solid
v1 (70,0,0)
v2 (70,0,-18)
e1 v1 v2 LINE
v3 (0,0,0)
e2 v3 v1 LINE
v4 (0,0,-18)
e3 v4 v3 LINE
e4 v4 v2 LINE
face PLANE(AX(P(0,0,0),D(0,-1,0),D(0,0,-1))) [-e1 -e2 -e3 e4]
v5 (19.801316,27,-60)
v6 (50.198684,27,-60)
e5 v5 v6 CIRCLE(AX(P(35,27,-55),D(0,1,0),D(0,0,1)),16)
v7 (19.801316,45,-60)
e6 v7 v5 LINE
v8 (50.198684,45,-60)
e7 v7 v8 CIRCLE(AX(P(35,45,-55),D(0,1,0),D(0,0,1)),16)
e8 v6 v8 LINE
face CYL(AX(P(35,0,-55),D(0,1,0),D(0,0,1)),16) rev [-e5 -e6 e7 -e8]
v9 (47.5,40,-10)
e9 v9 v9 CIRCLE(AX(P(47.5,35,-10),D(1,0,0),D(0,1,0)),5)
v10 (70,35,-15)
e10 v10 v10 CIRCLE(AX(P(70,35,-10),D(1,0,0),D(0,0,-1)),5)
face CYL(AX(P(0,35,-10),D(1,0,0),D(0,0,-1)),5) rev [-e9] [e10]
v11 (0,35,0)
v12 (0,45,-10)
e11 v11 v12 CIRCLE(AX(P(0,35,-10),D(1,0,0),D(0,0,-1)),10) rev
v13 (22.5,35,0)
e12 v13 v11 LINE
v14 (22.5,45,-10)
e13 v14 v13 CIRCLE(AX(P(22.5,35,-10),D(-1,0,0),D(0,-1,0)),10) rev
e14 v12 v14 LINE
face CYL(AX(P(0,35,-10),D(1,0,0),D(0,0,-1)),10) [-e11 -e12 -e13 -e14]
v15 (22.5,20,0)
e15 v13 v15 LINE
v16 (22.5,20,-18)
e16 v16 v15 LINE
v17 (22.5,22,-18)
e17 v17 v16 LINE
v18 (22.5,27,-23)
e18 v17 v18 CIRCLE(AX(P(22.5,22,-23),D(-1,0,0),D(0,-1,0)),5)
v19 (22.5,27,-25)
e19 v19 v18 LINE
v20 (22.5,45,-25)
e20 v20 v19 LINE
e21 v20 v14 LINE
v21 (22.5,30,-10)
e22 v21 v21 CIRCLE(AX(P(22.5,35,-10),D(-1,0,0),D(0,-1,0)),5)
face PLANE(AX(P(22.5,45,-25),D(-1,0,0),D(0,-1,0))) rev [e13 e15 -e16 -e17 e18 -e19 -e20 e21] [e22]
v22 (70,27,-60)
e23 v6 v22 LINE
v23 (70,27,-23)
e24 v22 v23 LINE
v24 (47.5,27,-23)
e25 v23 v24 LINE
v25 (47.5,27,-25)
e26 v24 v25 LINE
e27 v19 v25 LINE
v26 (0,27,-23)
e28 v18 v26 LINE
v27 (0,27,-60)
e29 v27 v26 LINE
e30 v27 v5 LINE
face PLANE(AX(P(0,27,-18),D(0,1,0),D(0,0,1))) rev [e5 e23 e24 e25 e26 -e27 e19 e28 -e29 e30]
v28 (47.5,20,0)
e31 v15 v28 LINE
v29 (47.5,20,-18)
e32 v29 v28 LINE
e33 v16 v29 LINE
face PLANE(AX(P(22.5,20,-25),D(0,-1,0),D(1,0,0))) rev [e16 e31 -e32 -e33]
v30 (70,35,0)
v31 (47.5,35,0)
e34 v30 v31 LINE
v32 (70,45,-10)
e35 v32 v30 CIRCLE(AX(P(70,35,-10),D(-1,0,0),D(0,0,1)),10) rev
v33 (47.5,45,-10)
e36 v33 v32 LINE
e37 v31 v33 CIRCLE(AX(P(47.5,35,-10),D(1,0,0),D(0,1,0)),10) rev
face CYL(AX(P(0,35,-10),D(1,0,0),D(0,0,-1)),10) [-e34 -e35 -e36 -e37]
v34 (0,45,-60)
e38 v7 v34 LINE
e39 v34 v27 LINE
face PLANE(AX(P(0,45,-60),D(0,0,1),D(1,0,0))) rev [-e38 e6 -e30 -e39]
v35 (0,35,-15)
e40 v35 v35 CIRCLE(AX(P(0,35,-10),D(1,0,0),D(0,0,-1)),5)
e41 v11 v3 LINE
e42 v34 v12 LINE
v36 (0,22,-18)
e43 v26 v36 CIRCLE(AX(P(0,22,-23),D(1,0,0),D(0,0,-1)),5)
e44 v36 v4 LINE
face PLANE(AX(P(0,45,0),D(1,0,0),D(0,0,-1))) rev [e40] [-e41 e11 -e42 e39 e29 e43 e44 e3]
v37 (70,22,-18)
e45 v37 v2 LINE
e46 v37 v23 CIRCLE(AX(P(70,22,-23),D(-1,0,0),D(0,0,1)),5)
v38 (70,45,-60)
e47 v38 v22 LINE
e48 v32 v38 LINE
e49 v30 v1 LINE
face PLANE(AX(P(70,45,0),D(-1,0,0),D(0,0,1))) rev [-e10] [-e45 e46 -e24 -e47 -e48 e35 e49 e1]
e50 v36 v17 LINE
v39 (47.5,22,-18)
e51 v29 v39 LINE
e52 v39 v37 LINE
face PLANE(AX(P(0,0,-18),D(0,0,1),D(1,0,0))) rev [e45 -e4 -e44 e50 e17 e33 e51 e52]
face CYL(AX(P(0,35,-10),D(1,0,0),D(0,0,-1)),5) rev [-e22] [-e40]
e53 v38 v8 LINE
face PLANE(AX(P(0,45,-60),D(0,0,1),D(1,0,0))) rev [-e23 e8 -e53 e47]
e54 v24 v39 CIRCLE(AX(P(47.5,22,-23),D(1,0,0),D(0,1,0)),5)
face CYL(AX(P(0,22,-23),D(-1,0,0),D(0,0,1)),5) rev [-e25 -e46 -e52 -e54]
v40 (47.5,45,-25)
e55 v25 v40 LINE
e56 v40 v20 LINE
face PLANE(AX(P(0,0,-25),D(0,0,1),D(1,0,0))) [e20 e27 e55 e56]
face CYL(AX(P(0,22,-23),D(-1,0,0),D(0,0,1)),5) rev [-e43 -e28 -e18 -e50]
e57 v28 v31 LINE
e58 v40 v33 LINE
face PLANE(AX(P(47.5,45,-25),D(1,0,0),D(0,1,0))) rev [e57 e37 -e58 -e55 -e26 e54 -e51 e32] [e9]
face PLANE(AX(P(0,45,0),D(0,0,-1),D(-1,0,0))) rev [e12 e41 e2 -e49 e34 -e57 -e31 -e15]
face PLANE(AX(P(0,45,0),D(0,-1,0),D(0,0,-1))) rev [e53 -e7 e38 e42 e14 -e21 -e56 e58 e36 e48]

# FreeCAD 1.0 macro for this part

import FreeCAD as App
import Part
import Sketcher
from FreeCAD import Vector


def edges_at(feature, points):
    """Names of the edges that pass closest to the given points."""
    edges = feature.Shape.Edges
    near = lambda p: min(range(len(edges)), key=lambda i: edges[i].distToShape(Part.Vertex(*p))[0])
    return sorted({f"Edge{near(p) + 1}" for p in points})

doc = App.newDocument("Part")
body = doc.addObject("PartDesign::Body", "Body")

# Sketch on XZ plane
sketch1 = body.newObject("Sketcher::SketchObject", "Sketch")
sketch1.AttachmentSupport = (doc.getObject("XZ_Plane"), [""])
sketch1.MapMode = "FlatFace"
sketch1.addGeometry([
    Part.LineSegment(Vector(0, -60, 0), Vector(0, 0, 0)),
    Part.LineSegment(Vector(0, 0, 0), Vector(70, 0, 0)),
    Part.LineSegment(Vector(70, 0, 0), Vector(70, -60, 0)),
    Part.LineSegment(Vector(70, -60, 0), Vector(0, -60, 0)),
], False)
sketch1.addConstraint([
    Sketcher.Constraint("Coincident", 0, 2, 1, 1),
    Sketcher.Constraint("Coincident", 1, 2, 2, 1),
    Sketcher.Constraint("Coincident", 2, 2, 3, 1),
    Sketcher.Constraint("Coincident", 3, 2, 0, 1),
    Sketcher.Constraint("Vertical", 0),
    Sketcher.Constraint("Horizontal", 1),
    Sketcher.Constraint("Vertical", 2),
    Sketcher.Constraint("Horizontal", 3),
    Sketcher.Constraint("Coincident", 0, 2, -1, 1),
    Sketcher.Constraint("DistanceX", 1, 1, 1, 2, 70.0),
    Sketcher.Constraint("DistanceY", 0, 1, 0, 2, 60.0),
])
pad1 = body.newObject("PartDesign::Pad", "Pad")
pad1.Profile = sketch1
pad1.Length = 45
pad1.Reversed = True

# Sketch on YZ plane
sketch2 = body.newObject("Sketcher::SketchObject", "Sketch001")
sketch2.AttachmentSupport = (doc.getObject("YZ_Plane"), [""])
sketch2.MapMode = "FlatFace"
sketch2.AttachmentOffset = App.Placement(Vector(0, 0, 70), App.Rotation())
sketch2.addGeometry([
    Part.LineSegment(Vector(27, -18, 0), Vector(0, -18, 0)),
    Part.LineSegment(Vector(0, -18, 0), Vector(0, -60, 0)),
    Part.LineSegment(Vector(0, -60, 0), Vector(27, -60, 0)),
    Part.LineSegment(Vector(27, -60, 0), Vector(27, -18, 0)),
], False)
sketch2.addConstraint([
    Sketcher.Constraint("Coincident", 0, 2, 1, 1),
    Sketcher.Constraint("Coincident", 1, 2, 2, 1),
    Sketcher.Constraint("Coincident", 2, 2, 3, 1),
    Sketcher.Constraint("Coincident", 3, 2, 0, 1),
    Sketcher.Constraint("Horizontal", 0),
    Sketcher.Constraint("Vertical", 1),
    Sketcher.Constraint("Horizontal", 2),
    Sketcher.Constraint("Vertical", 3),
    Sketcher.Constraint("PointOnObject", 0, 2, -2),
    Sketcher.Constraint("DistanceX", 0, 2, 0, 1, 27.0),
    Sketcher.Constraint("DistanceY", 1, 2, 1, 1, 42.0),
    Sketcher.Constraint("DistanceY", 0, 2, -1, 1, 18.0),
])
pocket1 = body.newObject("PartDesign::Pocket", "Pocket")
pocket1.Profile = sketch2
pocket1.Type = "ThroughAll"

# Sketch on XZ plane
sketch3 = body.newObject("Sketcher::SketchObject", "Sketch002")
sketch3.AttachmentSupport = (doc.getObject("XZ_Plane"), [""])
sketch3.MapMode = "FlatFace"
sketch3.AttachmentOffset = App.Placement(Vector(0, 0, -45), App.Rotation())
sketch3.addGeometry(Part.Circle(Vector(35, -55, 0), Vector(0, 0, 1), 16), False)
sketch3.addConstraint([
    Sketcher.Constraint("Diameter", 0, 32.0),
    Sketcher.Constraint("DistanceX", -1, 1, 0, 3, 35.0),
    Sketcher.Constraint("DistanceY", 0, 3, -1, 1, 55.0),
])
pocket2 = body.newObject("PartDesign::Pocket", "Pocket001")
pocket2.Profile = sketch3
pocket2.Length = 45
pocket2.Reversed = True

# Sketch on XY plane
sketch4 = body.newObject("Sketcher::SketchObject", "Sketch003")
sketch4.AttachmentSupport = (doc.getObject("XY_Plane"), [""])
sketch4.MapMode = "FlatFace"
sketch4.addGeometry([
    Part.LineSegment(Vector(22.5, 45, 0), Vector(22.5, 20, 0)),
    Part.LineSegment(Vector(22.5, 20, 0), Vector(47.5, 20, 0)),
    Part.LineSegment(Vector(47.5, 20, 0), Vector(47.5, 45, 0)),
    Part.LineSegment(Vector(47.5, 45, 0), Vector(22.5, 45, 0)),
], False)
sketch4.addConstraint([
    Sketcher.Constraint("Coincident", 0, 2, 1, 1),
    Sketcher.Constraint("Coincident", 1, 2, 2, 1),
    Sketcher.Constraint("Coincident", 2, 2, 3, 1),
    Sketcher.Constraint("Coincident", 3, 2, 0, 1),
    Sketcher.Constraint("Vertical", 0),
    Sketcher.Constraint("Horizontal", 1),
    Sketcher.Constraint("Vertical", 2),
    Sketcher.Constraint("Horizontal", 3),
    Sketcher.Constraint("Equal", 3, 0),
    Sketcher.Constraint("DistanceX", 1, 1, 1, 2, 25.0),
    Sketcher.Constraint("DistanceY", -1, 1, 0, 2, 20.0),
    Sketcher.Constraint("DistanceX", -1, 1, 0, 2, 22.5),
])
pocket3 = body.newObject("PartDesign::Pocket", "Pocket002")
pocket3.Profile = sketch4
pocket3.Length = 25
doc.recompute()

fillet = body.newObject("PartDesign::Fillet", "Fillet")
fillet.Base = (pocket3, edges_at(pocket3, [(58.75, 45, 0), (11.25, 45, 0)]))
fillet.Radius = 10
doc.recompute()

fillet2 = body.newObject("PartDesign::Fillet", "Fillet001")
fillet2.Base = (fillet, edges_at(fillet, [(11.25, 27, -18), (58.75, 27, -18)]))
fillet2.Radius = 5

# Sketch on YZ plane
sketch5 = body.newObject("Sketcher::SketchObject", "Sketch004")
sketch5.AttachmentSupport = (doc.getObject("YZ_Plane"), [""])
sketch5.MapMode = "FlatFace"
sketch5.AttachmentOffset = App.Placement(Vector(0, 0, 70), App.Rotation())
sketch5.addGeometry(Part.Circle(Vector(35, -10, 0), Vector(0, 0, 1), 5), False)
sketch5.addConstraint([
    Sketcher.Constraint("Diameter", 0, 10.0),
    Sketcher.Constraint("DistanceX", -1, 1, 0, 3, 35.0),
    Sketcher.Constraint("DistanceY", 0, 3, -1, 1, 10.0),
])
pocket4 = body.newObject("PartDesign::Pocket", "Pocket003")
pocket4.Profile = sketch5
pocket4.Type = "ThroughAll"

doc.recompute()
